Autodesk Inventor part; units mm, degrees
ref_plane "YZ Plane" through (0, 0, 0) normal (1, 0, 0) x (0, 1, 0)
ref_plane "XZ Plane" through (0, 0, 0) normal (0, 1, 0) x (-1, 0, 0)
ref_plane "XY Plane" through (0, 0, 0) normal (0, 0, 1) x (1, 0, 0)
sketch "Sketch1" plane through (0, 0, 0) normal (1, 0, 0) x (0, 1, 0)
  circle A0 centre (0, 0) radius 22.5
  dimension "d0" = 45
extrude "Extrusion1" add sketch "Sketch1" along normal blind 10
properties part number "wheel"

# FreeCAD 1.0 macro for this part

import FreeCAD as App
import Part
import Sketcher
from FreeCAD import Vector

doc = App.newDocument("Part")
body = doc.addObject("PartDesign::Body", "Body")

sketch1 = body.newObject("Sketcher::SketchObject", "Sketch")
sketch1.AttachmentSupport = (doc.getObject("YZ_Plane"), [""])
sketch1.MapMode = "FlatFace"
sketch1.addGeometry(Part.Circle(Vector(0, 0, 0), Vector(0, 0, 1), 22.5), False)
sketch1.addConstraint([
    Sketcher.Constraint("Coincident", 0, 3, -1, 1),
    Sketcher.Constraint("Diameter", 0, 45.0),
])
pad1 = body.newObject("PartDesign::Pad", "Pad")
pad1.Profile = sketch1
pad1.Length = 10

doc.recompute()
